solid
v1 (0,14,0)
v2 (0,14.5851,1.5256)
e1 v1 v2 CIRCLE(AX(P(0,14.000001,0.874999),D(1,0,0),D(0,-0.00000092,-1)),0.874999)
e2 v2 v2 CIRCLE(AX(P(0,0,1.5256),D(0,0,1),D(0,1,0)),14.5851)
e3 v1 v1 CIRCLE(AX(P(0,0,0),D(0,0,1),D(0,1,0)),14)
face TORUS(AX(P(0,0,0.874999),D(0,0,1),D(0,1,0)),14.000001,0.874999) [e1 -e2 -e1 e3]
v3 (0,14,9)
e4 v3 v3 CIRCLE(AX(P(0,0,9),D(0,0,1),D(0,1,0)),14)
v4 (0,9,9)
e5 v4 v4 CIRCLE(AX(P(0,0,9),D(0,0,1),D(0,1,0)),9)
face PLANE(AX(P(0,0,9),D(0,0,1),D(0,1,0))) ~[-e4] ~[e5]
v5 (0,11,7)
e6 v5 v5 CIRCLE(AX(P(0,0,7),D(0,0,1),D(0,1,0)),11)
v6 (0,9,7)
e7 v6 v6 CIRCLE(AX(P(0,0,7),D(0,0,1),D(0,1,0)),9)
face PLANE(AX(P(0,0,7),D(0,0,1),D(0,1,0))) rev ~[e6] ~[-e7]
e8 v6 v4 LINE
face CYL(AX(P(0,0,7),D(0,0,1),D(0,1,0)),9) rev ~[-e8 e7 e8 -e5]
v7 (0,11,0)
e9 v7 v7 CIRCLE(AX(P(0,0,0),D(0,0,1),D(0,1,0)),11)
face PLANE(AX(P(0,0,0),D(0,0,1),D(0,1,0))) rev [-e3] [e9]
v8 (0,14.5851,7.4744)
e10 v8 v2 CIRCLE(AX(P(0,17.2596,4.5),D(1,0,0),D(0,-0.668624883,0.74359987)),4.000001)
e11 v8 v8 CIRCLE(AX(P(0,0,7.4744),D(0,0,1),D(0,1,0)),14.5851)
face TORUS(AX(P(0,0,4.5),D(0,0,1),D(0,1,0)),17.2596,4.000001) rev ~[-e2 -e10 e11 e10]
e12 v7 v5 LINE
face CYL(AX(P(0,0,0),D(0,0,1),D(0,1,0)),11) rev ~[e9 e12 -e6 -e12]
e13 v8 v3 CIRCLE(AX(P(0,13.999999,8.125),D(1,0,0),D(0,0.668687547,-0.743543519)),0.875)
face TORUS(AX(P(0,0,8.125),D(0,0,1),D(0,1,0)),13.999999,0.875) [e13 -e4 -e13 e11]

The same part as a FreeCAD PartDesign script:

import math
import FreeCAD as App
import Part
import Sketcher

V = App.Vector
Q = App.Units.Quantity

doc = App.newDocument("Part")
body = doc.addObject("PartDesign::Body", "Body")

# Sketch on YZ plane
sketch1 = doc.addObject("Sketcher::SketchObject", "Sketch")
body.addObject(sketch1)
sketch1.AttachmentSupport = (doc.YZ_Plane, [""])
sketch1.MapMode = "FlatFace"
sketch1.addGeometry([
    Part.LineSegment(V(11, 7, 0), V(11, 0, 0)),  # 0
    Part.LineSegment(V(11, 0, 0), V(14, 0, 0)),  # 1
    Part.ArcOfCircle(Part.Circle(V(14, 0.875, 0), V(0, 0, 1), 0.875), math.radians(-90), math.radians(48.034203)),  # 2
    Part.ArcOfCircle(Part.Circle(V(17.2596, 4.5, 0), V(0, 0, 1), 4.000001), math.radians(131.961021), math.radians(228.038979)),  # 3
    Part.ArcOfCircle(Part.Circle(V(14, 8.125, 0), V(0, 0, 1), 0.874998), math.radians(-48.034203), math.radians(90)),  # 4
    Part.LineSegment(V(14, 9, 0), V(9, 9, 0)),  # 5
    Part.LineSegment(V(9, 9, 0), V(9, 7, 0)),  # 6
    Part.LineSegment(V(9, 7, 0), V(11, 7, 0)),  # 7
], False)
sketch1.addConstraint([
    Sketcher.Constraint("Coincident", 0, 2, 1, 1),
    Sketcher.Constraint("Tangent", 1, 2, 2, 1),
    Sketcher.Constraint("Tangent", 2, 2, 3, 2),
    Sketcher.Constraint("Tangent", 3, 1, 4, 1),
    Sketcher.Constraint("Tangent", 4, 2, 5, 1),
    Sketcher.Constraint("Coincident", 5, 2, 6, 1),
    Sketcher.Constraint("Coincident", 6, 2, 7, 1),
    Sketcher.Constraint("Coincident", 7, 2, 0, 1),
    Sketcher.Constraint("Vertical", 0),
    Sketcher.Constraint("Horizontal", 1),
    Sketcher.Constraint("Horizontal", 5),
    Sketcher.Constraint("Vertical", 6),
    Sketcher.Constraint("Horizontal", 7),
    Sketcher.Constraint("Equal", 2, 4),
    Sketcher.Constraint("PointOnObject", 0, 2, -1),
    Sketcher.Constraint("Vertical", 2, 3, 4, 3),
    Sketcher.Constraint("Equal", 7, 6),
    Sketcher.Constraint("Radius", 3, Q("4 mm")),
    Sketcher.Constraint("DistanceX", 1, 1, 1, 2, Q("3 mm")),
    Sketcher.Constraint("DistanceX", 7, 1, 7, 2, Q("2 mm")),
    Sketcher.Constraint("DistanceY", 0, 2, 0, 1, Q("7 mm")),
    Sketcher.Constraint("DistanceX", -1, 1, 0, 2, Q("11 mm")),
    Sketcher.Constraint("Radius", 2, Q("0.875 mm")),
])
revolution = doc.addObject("PartDesign::Revolution", "Revolution")
body.addObject(revolution)
revolution.Profile = sketch1
revolution.ReferenceAxis = (sketch1, ["V_Axis"])
revolution.Angle = 360

doc.recompute()
